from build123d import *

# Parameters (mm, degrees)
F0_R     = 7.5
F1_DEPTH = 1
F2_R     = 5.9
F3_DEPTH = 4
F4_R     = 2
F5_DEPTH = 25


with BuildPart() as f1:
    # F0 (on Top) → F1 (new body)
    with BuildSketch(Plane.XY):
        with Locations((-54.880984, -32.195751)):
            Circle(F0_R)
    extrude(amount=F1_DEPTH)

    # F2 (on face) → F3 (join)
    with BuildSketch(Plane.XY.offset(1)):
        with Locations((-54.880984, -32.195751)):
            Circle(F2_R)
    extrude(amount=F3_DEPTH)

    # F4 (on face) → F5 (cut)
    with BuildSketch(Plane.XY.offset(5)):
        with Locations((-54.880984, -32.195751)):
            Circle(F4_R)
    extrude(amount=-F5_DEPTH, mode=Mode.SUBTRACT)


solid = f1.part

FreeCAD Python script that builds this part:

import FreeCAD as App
import Part
import Sketcher
from FreeCAD import Vector

doc = App.newDocument("Part")
body = doc.addObject("PartDesign::Body", "Body")

# Sketch on XY plane
sketch1 = doc.addObject("Sketcher::SketchObject", "Sketch")
body.addObject(sketch1)
sketch1.AttachmentSupport = (doc.XY_Plane, [""])
sketch1.MapMode = "FlatFace"
sketch1.addGeometry(Part.Circle(Vector(-55, -32, 0), Vector(0, 0, 1), 8), False)
sketch1.addConstraint(Sketcher.Constraint("Diameter", 0, 15.0))
sketch1.addConstraint(Sketcher.Constraint("DistanceY", 0, 3, -1, 1, 32.195751))
sketch1.addConstraint(Sketcher.Constraint("DistanceX", 0, 3, -1, 1, 54.880984))
pad1 = doc.addObject("PartDesign::Pad", "Pad")
body.addObject(pad1)
pad1.Profile = sketch1
pad1.Length = 1

# Sketch on XY plane
sketch2 = doc.addObject("Sketcher::SketchObject", "Sketch001")
body.addObject(sketch2)
sketch2.AttachmentSupport = (doc.XY_Plane, [""])
sketch2.MapMode = "FlatFace"
sketch2.AttachmentOffset = App.Placement(Vector(0, 0, 1), App.Rotation())
sketch2.addGeometry(Part.Circle(Vector(-55, -32, 0), Vector(0, 0, 1), 6), False)
sketch2.addConstraint(Sketcher.Constraint("Diameter", 0, 11.8))
sketch2.addConstraint(Sketcher.Constraint("DistanceY", 0, 3, -1, 1, 32.195751))
sketch2.addConstraint(Sketcher.Constraint("DistanceX", 0, 3, -1, 1, 54.880984))
pad2 = doc.addObject("PartDesign::Pad", "Pad001")
body.addObject(pad2)
pad2.Profile = sketch2
pad2.Length = 4

# Sketch on XY plane
sketch3 = doc.addObject("Sketcher::SketchObject", "Sketch002")
body.addObject(sketch3)
sketch3.AttachmentSupport = (doc.XY_Plane, [""])
sketch3.MapMode = "FlatFace"
sketch3.AttachmentOffset = App.Placement(Vector(0, 0, 5), App.Rotation())
sketch3.addGeometry(Part.Circle(Vector(-54.9, -32.2, 0), Vector(0, 0, 1), 2), False)
sketch3.addConstraint(Sketcher.Constraint("Diameter", 0, 4.0))
sketch3.addConstraint(Sketcher.Constraint("DistanceY", 0, 3, -1, 1, 32.195751))
sketch3.addConstraint(Sketcher.Constraint("DistanceX", 0, 3, -1, 1, 54.880984))
pocket1 = doc.addObject("PartDesign::Pocket", "Pocket")
body.addObject(pocket1)
pocket1.Profile = sketch3
pocket1.Length = 25

doc.recompute()
